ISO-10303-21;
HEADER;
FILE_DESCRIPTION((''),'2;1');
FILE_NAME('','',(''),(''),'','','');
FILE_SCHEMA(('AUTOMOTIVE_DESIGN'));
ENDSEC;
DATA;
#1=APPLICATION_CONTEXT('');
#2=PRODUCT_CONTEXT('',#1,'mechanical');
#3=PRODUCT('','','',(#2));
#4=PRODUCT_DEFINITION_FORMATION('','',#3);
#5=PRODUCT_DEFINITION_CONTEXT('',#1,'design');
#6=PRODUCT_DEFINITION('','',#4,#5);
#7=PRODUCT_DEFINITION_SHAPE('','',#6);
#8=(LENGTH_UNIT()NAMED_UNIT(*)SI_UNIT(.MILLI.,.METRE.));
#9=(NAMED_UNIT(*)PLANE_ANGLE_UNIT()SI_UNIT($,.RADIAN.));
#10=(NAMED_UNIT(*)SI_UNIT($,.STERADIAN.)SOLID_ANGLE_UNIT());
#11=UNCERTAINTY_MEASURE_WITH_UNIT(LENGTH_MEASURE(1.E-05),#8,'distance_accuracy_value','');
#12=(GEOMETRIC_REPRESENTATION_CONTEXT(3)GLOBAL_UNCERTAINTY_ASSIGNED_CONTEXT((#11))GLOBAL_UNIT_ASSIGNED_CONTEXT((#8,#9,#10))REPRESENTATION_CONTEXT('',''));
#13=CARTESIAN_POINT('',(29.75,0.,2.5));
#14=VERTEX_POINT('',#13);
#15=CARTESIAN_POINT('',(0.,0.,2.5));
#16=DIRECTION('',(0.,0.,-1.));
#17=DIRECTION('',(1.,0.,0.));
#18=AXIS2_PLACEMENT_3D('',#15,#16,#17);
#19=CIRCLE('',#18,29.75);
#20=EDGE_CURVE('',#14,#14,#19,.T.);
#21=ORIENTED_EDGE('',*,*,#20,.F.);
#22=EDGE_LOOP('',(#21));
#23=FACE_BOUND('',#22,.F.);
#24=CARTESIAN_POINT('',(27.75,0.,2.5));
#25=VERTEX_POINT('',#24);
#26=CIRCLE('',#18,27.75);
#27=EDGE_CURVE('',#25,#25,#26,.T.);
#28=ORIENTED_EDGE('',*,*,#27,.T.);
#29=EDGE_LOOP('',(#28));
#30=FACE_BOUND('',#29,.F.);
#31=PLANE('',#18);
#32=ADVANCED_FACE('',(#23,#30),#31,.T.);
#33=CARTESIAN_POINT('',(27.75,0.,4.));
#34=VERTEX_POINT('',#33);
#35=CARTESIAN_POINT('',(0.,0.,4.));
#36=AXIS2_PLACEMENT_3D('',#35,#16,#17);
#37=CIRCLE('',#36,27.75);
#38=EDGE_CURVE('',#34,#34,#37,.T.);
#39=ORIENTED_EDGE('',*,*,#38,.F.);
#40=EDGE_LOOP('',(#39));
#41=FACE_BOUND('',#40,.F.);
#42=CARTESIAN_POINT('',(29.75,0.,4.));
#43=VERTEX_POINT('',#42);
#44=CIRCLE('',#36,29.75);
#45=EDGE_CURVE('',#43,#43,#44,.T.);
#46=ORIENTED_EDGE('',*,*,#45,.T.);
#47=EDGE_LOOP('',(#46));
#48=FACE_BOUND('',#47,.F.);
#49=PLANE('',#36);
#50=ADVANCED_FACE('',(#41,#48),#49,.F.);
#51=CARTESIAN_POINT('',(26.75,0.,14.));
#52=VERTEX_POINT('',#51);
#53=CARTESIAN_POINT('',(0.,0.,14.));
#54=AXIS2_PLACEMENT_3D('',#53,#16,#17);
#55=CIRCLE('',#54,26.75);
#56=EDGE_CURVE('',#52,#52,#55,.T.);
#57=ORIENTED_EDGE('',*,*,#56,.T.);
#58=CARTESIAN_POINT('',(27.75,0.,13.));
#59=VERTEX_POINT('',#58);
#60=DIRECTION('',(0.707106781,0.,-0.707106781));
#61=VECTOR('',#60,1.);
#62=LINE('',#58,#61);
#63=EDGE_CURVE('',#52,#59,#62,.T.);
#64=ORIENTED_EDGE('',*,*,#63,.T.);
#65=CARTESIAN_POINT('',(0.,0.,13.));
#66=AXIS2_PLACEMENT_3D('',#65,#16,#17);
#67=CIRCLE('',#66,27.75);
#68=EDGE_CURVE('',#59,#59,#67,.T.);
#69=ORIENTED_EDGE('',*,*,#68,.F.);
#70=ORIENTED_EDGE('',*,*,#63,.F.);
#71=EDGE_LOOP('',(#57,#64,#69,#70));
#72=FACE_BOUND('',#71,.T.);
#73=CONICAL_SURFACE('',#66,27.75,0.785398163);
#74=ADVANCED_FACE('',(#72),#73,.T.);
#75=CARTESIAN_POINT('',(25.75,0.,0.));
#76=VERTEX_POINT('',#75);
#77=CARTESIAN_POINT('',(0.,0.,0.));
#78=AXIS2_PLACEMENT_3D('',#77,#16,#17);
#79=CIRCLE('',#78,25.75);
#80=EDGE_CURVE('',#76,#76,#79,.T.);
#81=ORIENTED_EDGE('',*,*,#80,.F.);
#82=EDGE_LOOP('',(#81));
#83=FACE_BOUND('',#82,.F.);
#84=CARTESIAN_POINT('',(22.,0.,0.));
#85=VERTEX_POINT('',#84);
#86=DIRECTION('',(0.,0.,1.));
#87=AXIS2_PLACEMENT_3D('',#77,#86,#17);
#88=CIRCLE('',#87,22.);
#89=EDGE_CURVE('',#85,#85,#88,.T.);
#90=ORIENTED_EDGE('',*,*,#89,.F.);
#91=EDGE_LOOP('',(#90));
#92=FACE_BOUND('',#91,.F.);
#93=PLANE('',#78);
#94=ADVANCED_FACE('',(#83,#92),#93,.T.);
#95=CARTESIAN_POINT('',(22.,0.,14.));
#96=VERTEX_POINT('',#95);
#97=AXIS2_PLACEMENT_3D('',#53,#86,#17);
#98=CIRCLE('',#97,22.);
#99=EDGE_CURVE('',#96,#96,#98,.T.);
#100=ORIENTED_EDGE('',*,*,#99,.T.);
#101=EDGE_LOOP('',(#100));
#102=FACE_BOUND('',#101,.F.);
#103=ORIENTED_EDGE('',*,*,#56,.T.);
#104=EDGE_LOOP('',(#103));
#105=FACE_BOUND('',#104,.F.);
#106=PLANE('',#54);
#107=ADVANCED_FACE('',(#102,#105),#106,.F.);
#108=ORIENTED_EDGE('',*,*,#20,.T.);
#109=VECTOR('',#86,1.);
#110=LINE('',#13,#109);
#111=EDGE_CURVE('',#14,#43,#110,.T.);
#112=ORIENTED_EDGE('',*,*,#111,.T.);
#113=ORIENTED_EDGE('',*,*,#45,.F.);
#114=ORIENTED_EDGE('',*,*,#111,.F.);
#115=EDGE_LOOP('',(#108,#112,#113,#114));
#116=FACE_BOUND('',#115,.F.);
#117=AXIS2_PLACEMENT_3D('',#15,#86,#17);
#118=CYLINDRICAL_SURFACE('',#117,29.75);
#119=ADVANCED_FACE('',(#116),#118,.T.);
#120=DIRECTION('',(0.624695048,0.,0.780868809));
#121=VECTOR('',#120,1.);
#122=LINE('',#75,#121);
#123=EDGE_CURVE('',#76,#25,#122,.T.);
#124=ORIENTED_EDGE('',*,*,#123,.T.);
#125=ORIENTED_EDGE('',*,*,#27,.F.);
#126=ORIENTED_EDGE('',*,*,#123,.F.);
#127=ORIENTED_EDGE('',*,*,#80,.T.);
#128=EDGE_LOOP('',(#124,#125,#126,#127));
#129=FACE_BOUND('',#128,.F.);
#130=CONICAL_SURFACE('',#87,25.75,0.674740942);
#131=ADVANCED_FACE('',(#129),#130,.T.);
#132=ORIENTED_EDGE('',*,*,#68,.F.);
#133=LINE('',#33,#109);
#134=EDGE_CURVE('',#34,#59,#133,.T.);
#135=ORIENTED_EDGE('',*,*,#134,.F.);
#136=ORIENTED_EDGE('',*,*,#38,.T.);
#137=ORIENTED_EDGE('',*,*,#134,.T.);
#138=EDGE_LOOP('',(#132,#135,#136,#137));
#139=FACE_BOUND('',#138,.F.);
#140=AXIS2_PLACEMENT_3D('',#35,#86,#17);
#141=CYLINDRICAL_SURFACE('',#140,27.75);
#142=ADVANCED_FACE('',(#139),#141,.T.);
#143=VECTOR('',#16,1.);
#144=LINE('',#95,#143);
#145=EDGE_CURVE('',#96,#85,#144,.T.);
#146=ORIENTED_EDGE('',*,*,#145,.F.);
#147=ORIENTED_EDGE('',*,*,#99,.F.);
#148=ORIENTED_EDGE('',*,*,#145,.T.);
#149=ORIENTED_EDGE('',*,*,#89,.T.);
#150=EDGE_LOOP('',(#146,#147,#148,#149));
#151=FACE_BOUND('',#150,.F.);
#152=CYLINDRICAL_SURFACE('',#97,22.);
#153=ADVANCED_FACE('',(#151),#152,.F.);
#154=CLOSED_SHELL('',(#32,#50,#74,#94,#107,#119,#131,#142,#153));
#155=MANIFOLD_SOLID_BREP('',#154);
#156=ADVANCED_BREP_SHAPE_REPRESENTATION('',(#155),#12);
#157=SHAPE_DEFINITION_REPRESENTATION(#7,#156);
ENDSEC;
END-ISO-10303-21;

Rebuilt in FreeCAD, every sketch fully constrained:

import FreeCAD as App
import Part
import Sketcher
Q = App.Units.Quantity


def edges_at(feature, points):
    """Names of the edges that pass closest to the given points."""
    edges = feature.Shape.Edges
    near = lambda p: min(range(len(edges)), key=lambda i: edges[i].distToShape(Part.Vertex(*p))[0])
    return sorted({f"Edge{near(p) + 1}" for p in points})

doc = App.newDocument("Part")
body = doc.addObject("PartDesign::Body", "Body")

# Sketch on XZ plane
sketch1 = body.newObject("Sketcher::SketchObject", "Sketch")
sketch1.AttachmentSupport = (doc.getObject("XZ_Plane"), [""])
sketch1.MapMode = "FlatFace"
sketch1.addGeometry([
    Part.LineSegment(App.Vector(0, 14, 0), App.Vector(0, 0, 0)),  # 0
    Part.LineSegment(App.Vector(0, 0, 0), App.Vector(25.8, 0, 0)),  # 1
    Part.LineSegment(App.Vector(25.8, 0, 0), App.Vector(27.8, 2.5, 0)),  # 2
    Part.LineSegment(App.Vector(27.8, 2.5, 0), App.Vector(29.8, 2.5, 0)),  # 3
    Part.LineSegment(App.Vector(29.8, 2.5, 0), App.Vector(29.8, 4, 0)),  # 4
    Part.LineSegment(App.Vector(29.8, 4, 0), App.Vector(27.8, 4, 0)),  # 5
    Part.LineSegment(App.Vector(27.8, 4, 0), App.Vector(27.8, 14, 0)),  # 6
    Part.LineSegment(App.Vector(27.8, 14, 0), App.Vector(0, 14, 0)),  # 7
], False)
sketch1.addConstraint([
    Sketcher.Constraint("Coincident", 0, 2, 1, 1),
    Sketcher.Constraint("Coincident", 1, 2, 2, 1),
    Sketcher.Constraint("Coincident", 2, 2, 3, 1),
    Sketcher.Constraint("Coincident", 3, 2, 4, 1),
    Sketcher.Constraint("Coincident", 4, 2, 5, 1),
    Sketcher.Constraint("Coincident", 5, 2, 6, 1),
    Sketcher.Constraint("Coincident", 6, 2, 7, 1),
    Sketcher.Constraint("Coincident", 7, 2, 0, 1),
    Sketcher.Constraint("Vertical", 0),
    Sketcher.Constraint("Horizontal", 1),
    Sketcher.Constraint("Horizontal", 3),
    Sketcher.Constraint("Vertical", 4),
    Sketcher.Constraint("Horizontal", 5),
    Sketcher.Constraint("Vertical", 6),
    Sketcher.Constraint("Horizontal", 7),
    Sketcher.Constraint("Coincident", 0, 2, -1, 1),
    Sketcher.Constraint("Vertical", 2, 2, 5, 2),
    Sketcher.Constraint("DistanceX", 3, 1, 3, 2, Q("2 mm")),
    Sketcher.Constraint("DistanceY", 0, 2, 0, 1, Q("14 mm")),
    Sketcher.Constraint("DistanceY", 6, 1, 6, 2, Q("10 mm")),
    Sketcher.Constraint("DistanceY", 4, 1, 4, 2, Q("1.5 mm")),
    Sketcher.Constraint("DistanceX", 1, 2, 2, 2, Q("2 mm")),
    Sketcher.Constraint("DistanceX", 1, 1, 1, 2, Q("25.75 mm")),
])
revolution = body.newObject("PartDesign::Revolution", "Revolution")
revolution.Profile = sketch1
revolution.ReferenceAxis = (sketch1, ["V_Axis"])
revolution.Angle = 360

# Sketch on XY plane
sketch2 = body.newObject("Sketcher::SketchObject", "Sketch001")
sketch2.AttachmentSupport = (doc.getObject("XY_Plane"), [""])
sketch2.MapMode = "FlatFace"
sketch2.AttachmentOffset = App.Placement(App.Vector(0, 0, 14), App.Rotation())
sketch2.addGeometry(Part.Circle(App.Vector(0, 0, 0), App.Vector(0, 0, 1), 22), False)
sketch2.addConstraint([
    Sketcher.Constraint("Coincident", 0, 3, -1, 1),
    Sketcher.Constraint("Diameter", 0, Q("44 mm")),
])
pocket1 = body.newObject("PartDesign::Pocket", "Pocket")
pocket1.Profile = sketch2
pocket1.Length = 25
doc.recompute()

chamfer = body.newObject("PartDesign::Chamfer", "Chamfer")
chamfer.Base = (pocket1, edges_at(pocket1, [(-27.75, 0, 14)]))
chamfer.Size = 1

doc.recompute()
